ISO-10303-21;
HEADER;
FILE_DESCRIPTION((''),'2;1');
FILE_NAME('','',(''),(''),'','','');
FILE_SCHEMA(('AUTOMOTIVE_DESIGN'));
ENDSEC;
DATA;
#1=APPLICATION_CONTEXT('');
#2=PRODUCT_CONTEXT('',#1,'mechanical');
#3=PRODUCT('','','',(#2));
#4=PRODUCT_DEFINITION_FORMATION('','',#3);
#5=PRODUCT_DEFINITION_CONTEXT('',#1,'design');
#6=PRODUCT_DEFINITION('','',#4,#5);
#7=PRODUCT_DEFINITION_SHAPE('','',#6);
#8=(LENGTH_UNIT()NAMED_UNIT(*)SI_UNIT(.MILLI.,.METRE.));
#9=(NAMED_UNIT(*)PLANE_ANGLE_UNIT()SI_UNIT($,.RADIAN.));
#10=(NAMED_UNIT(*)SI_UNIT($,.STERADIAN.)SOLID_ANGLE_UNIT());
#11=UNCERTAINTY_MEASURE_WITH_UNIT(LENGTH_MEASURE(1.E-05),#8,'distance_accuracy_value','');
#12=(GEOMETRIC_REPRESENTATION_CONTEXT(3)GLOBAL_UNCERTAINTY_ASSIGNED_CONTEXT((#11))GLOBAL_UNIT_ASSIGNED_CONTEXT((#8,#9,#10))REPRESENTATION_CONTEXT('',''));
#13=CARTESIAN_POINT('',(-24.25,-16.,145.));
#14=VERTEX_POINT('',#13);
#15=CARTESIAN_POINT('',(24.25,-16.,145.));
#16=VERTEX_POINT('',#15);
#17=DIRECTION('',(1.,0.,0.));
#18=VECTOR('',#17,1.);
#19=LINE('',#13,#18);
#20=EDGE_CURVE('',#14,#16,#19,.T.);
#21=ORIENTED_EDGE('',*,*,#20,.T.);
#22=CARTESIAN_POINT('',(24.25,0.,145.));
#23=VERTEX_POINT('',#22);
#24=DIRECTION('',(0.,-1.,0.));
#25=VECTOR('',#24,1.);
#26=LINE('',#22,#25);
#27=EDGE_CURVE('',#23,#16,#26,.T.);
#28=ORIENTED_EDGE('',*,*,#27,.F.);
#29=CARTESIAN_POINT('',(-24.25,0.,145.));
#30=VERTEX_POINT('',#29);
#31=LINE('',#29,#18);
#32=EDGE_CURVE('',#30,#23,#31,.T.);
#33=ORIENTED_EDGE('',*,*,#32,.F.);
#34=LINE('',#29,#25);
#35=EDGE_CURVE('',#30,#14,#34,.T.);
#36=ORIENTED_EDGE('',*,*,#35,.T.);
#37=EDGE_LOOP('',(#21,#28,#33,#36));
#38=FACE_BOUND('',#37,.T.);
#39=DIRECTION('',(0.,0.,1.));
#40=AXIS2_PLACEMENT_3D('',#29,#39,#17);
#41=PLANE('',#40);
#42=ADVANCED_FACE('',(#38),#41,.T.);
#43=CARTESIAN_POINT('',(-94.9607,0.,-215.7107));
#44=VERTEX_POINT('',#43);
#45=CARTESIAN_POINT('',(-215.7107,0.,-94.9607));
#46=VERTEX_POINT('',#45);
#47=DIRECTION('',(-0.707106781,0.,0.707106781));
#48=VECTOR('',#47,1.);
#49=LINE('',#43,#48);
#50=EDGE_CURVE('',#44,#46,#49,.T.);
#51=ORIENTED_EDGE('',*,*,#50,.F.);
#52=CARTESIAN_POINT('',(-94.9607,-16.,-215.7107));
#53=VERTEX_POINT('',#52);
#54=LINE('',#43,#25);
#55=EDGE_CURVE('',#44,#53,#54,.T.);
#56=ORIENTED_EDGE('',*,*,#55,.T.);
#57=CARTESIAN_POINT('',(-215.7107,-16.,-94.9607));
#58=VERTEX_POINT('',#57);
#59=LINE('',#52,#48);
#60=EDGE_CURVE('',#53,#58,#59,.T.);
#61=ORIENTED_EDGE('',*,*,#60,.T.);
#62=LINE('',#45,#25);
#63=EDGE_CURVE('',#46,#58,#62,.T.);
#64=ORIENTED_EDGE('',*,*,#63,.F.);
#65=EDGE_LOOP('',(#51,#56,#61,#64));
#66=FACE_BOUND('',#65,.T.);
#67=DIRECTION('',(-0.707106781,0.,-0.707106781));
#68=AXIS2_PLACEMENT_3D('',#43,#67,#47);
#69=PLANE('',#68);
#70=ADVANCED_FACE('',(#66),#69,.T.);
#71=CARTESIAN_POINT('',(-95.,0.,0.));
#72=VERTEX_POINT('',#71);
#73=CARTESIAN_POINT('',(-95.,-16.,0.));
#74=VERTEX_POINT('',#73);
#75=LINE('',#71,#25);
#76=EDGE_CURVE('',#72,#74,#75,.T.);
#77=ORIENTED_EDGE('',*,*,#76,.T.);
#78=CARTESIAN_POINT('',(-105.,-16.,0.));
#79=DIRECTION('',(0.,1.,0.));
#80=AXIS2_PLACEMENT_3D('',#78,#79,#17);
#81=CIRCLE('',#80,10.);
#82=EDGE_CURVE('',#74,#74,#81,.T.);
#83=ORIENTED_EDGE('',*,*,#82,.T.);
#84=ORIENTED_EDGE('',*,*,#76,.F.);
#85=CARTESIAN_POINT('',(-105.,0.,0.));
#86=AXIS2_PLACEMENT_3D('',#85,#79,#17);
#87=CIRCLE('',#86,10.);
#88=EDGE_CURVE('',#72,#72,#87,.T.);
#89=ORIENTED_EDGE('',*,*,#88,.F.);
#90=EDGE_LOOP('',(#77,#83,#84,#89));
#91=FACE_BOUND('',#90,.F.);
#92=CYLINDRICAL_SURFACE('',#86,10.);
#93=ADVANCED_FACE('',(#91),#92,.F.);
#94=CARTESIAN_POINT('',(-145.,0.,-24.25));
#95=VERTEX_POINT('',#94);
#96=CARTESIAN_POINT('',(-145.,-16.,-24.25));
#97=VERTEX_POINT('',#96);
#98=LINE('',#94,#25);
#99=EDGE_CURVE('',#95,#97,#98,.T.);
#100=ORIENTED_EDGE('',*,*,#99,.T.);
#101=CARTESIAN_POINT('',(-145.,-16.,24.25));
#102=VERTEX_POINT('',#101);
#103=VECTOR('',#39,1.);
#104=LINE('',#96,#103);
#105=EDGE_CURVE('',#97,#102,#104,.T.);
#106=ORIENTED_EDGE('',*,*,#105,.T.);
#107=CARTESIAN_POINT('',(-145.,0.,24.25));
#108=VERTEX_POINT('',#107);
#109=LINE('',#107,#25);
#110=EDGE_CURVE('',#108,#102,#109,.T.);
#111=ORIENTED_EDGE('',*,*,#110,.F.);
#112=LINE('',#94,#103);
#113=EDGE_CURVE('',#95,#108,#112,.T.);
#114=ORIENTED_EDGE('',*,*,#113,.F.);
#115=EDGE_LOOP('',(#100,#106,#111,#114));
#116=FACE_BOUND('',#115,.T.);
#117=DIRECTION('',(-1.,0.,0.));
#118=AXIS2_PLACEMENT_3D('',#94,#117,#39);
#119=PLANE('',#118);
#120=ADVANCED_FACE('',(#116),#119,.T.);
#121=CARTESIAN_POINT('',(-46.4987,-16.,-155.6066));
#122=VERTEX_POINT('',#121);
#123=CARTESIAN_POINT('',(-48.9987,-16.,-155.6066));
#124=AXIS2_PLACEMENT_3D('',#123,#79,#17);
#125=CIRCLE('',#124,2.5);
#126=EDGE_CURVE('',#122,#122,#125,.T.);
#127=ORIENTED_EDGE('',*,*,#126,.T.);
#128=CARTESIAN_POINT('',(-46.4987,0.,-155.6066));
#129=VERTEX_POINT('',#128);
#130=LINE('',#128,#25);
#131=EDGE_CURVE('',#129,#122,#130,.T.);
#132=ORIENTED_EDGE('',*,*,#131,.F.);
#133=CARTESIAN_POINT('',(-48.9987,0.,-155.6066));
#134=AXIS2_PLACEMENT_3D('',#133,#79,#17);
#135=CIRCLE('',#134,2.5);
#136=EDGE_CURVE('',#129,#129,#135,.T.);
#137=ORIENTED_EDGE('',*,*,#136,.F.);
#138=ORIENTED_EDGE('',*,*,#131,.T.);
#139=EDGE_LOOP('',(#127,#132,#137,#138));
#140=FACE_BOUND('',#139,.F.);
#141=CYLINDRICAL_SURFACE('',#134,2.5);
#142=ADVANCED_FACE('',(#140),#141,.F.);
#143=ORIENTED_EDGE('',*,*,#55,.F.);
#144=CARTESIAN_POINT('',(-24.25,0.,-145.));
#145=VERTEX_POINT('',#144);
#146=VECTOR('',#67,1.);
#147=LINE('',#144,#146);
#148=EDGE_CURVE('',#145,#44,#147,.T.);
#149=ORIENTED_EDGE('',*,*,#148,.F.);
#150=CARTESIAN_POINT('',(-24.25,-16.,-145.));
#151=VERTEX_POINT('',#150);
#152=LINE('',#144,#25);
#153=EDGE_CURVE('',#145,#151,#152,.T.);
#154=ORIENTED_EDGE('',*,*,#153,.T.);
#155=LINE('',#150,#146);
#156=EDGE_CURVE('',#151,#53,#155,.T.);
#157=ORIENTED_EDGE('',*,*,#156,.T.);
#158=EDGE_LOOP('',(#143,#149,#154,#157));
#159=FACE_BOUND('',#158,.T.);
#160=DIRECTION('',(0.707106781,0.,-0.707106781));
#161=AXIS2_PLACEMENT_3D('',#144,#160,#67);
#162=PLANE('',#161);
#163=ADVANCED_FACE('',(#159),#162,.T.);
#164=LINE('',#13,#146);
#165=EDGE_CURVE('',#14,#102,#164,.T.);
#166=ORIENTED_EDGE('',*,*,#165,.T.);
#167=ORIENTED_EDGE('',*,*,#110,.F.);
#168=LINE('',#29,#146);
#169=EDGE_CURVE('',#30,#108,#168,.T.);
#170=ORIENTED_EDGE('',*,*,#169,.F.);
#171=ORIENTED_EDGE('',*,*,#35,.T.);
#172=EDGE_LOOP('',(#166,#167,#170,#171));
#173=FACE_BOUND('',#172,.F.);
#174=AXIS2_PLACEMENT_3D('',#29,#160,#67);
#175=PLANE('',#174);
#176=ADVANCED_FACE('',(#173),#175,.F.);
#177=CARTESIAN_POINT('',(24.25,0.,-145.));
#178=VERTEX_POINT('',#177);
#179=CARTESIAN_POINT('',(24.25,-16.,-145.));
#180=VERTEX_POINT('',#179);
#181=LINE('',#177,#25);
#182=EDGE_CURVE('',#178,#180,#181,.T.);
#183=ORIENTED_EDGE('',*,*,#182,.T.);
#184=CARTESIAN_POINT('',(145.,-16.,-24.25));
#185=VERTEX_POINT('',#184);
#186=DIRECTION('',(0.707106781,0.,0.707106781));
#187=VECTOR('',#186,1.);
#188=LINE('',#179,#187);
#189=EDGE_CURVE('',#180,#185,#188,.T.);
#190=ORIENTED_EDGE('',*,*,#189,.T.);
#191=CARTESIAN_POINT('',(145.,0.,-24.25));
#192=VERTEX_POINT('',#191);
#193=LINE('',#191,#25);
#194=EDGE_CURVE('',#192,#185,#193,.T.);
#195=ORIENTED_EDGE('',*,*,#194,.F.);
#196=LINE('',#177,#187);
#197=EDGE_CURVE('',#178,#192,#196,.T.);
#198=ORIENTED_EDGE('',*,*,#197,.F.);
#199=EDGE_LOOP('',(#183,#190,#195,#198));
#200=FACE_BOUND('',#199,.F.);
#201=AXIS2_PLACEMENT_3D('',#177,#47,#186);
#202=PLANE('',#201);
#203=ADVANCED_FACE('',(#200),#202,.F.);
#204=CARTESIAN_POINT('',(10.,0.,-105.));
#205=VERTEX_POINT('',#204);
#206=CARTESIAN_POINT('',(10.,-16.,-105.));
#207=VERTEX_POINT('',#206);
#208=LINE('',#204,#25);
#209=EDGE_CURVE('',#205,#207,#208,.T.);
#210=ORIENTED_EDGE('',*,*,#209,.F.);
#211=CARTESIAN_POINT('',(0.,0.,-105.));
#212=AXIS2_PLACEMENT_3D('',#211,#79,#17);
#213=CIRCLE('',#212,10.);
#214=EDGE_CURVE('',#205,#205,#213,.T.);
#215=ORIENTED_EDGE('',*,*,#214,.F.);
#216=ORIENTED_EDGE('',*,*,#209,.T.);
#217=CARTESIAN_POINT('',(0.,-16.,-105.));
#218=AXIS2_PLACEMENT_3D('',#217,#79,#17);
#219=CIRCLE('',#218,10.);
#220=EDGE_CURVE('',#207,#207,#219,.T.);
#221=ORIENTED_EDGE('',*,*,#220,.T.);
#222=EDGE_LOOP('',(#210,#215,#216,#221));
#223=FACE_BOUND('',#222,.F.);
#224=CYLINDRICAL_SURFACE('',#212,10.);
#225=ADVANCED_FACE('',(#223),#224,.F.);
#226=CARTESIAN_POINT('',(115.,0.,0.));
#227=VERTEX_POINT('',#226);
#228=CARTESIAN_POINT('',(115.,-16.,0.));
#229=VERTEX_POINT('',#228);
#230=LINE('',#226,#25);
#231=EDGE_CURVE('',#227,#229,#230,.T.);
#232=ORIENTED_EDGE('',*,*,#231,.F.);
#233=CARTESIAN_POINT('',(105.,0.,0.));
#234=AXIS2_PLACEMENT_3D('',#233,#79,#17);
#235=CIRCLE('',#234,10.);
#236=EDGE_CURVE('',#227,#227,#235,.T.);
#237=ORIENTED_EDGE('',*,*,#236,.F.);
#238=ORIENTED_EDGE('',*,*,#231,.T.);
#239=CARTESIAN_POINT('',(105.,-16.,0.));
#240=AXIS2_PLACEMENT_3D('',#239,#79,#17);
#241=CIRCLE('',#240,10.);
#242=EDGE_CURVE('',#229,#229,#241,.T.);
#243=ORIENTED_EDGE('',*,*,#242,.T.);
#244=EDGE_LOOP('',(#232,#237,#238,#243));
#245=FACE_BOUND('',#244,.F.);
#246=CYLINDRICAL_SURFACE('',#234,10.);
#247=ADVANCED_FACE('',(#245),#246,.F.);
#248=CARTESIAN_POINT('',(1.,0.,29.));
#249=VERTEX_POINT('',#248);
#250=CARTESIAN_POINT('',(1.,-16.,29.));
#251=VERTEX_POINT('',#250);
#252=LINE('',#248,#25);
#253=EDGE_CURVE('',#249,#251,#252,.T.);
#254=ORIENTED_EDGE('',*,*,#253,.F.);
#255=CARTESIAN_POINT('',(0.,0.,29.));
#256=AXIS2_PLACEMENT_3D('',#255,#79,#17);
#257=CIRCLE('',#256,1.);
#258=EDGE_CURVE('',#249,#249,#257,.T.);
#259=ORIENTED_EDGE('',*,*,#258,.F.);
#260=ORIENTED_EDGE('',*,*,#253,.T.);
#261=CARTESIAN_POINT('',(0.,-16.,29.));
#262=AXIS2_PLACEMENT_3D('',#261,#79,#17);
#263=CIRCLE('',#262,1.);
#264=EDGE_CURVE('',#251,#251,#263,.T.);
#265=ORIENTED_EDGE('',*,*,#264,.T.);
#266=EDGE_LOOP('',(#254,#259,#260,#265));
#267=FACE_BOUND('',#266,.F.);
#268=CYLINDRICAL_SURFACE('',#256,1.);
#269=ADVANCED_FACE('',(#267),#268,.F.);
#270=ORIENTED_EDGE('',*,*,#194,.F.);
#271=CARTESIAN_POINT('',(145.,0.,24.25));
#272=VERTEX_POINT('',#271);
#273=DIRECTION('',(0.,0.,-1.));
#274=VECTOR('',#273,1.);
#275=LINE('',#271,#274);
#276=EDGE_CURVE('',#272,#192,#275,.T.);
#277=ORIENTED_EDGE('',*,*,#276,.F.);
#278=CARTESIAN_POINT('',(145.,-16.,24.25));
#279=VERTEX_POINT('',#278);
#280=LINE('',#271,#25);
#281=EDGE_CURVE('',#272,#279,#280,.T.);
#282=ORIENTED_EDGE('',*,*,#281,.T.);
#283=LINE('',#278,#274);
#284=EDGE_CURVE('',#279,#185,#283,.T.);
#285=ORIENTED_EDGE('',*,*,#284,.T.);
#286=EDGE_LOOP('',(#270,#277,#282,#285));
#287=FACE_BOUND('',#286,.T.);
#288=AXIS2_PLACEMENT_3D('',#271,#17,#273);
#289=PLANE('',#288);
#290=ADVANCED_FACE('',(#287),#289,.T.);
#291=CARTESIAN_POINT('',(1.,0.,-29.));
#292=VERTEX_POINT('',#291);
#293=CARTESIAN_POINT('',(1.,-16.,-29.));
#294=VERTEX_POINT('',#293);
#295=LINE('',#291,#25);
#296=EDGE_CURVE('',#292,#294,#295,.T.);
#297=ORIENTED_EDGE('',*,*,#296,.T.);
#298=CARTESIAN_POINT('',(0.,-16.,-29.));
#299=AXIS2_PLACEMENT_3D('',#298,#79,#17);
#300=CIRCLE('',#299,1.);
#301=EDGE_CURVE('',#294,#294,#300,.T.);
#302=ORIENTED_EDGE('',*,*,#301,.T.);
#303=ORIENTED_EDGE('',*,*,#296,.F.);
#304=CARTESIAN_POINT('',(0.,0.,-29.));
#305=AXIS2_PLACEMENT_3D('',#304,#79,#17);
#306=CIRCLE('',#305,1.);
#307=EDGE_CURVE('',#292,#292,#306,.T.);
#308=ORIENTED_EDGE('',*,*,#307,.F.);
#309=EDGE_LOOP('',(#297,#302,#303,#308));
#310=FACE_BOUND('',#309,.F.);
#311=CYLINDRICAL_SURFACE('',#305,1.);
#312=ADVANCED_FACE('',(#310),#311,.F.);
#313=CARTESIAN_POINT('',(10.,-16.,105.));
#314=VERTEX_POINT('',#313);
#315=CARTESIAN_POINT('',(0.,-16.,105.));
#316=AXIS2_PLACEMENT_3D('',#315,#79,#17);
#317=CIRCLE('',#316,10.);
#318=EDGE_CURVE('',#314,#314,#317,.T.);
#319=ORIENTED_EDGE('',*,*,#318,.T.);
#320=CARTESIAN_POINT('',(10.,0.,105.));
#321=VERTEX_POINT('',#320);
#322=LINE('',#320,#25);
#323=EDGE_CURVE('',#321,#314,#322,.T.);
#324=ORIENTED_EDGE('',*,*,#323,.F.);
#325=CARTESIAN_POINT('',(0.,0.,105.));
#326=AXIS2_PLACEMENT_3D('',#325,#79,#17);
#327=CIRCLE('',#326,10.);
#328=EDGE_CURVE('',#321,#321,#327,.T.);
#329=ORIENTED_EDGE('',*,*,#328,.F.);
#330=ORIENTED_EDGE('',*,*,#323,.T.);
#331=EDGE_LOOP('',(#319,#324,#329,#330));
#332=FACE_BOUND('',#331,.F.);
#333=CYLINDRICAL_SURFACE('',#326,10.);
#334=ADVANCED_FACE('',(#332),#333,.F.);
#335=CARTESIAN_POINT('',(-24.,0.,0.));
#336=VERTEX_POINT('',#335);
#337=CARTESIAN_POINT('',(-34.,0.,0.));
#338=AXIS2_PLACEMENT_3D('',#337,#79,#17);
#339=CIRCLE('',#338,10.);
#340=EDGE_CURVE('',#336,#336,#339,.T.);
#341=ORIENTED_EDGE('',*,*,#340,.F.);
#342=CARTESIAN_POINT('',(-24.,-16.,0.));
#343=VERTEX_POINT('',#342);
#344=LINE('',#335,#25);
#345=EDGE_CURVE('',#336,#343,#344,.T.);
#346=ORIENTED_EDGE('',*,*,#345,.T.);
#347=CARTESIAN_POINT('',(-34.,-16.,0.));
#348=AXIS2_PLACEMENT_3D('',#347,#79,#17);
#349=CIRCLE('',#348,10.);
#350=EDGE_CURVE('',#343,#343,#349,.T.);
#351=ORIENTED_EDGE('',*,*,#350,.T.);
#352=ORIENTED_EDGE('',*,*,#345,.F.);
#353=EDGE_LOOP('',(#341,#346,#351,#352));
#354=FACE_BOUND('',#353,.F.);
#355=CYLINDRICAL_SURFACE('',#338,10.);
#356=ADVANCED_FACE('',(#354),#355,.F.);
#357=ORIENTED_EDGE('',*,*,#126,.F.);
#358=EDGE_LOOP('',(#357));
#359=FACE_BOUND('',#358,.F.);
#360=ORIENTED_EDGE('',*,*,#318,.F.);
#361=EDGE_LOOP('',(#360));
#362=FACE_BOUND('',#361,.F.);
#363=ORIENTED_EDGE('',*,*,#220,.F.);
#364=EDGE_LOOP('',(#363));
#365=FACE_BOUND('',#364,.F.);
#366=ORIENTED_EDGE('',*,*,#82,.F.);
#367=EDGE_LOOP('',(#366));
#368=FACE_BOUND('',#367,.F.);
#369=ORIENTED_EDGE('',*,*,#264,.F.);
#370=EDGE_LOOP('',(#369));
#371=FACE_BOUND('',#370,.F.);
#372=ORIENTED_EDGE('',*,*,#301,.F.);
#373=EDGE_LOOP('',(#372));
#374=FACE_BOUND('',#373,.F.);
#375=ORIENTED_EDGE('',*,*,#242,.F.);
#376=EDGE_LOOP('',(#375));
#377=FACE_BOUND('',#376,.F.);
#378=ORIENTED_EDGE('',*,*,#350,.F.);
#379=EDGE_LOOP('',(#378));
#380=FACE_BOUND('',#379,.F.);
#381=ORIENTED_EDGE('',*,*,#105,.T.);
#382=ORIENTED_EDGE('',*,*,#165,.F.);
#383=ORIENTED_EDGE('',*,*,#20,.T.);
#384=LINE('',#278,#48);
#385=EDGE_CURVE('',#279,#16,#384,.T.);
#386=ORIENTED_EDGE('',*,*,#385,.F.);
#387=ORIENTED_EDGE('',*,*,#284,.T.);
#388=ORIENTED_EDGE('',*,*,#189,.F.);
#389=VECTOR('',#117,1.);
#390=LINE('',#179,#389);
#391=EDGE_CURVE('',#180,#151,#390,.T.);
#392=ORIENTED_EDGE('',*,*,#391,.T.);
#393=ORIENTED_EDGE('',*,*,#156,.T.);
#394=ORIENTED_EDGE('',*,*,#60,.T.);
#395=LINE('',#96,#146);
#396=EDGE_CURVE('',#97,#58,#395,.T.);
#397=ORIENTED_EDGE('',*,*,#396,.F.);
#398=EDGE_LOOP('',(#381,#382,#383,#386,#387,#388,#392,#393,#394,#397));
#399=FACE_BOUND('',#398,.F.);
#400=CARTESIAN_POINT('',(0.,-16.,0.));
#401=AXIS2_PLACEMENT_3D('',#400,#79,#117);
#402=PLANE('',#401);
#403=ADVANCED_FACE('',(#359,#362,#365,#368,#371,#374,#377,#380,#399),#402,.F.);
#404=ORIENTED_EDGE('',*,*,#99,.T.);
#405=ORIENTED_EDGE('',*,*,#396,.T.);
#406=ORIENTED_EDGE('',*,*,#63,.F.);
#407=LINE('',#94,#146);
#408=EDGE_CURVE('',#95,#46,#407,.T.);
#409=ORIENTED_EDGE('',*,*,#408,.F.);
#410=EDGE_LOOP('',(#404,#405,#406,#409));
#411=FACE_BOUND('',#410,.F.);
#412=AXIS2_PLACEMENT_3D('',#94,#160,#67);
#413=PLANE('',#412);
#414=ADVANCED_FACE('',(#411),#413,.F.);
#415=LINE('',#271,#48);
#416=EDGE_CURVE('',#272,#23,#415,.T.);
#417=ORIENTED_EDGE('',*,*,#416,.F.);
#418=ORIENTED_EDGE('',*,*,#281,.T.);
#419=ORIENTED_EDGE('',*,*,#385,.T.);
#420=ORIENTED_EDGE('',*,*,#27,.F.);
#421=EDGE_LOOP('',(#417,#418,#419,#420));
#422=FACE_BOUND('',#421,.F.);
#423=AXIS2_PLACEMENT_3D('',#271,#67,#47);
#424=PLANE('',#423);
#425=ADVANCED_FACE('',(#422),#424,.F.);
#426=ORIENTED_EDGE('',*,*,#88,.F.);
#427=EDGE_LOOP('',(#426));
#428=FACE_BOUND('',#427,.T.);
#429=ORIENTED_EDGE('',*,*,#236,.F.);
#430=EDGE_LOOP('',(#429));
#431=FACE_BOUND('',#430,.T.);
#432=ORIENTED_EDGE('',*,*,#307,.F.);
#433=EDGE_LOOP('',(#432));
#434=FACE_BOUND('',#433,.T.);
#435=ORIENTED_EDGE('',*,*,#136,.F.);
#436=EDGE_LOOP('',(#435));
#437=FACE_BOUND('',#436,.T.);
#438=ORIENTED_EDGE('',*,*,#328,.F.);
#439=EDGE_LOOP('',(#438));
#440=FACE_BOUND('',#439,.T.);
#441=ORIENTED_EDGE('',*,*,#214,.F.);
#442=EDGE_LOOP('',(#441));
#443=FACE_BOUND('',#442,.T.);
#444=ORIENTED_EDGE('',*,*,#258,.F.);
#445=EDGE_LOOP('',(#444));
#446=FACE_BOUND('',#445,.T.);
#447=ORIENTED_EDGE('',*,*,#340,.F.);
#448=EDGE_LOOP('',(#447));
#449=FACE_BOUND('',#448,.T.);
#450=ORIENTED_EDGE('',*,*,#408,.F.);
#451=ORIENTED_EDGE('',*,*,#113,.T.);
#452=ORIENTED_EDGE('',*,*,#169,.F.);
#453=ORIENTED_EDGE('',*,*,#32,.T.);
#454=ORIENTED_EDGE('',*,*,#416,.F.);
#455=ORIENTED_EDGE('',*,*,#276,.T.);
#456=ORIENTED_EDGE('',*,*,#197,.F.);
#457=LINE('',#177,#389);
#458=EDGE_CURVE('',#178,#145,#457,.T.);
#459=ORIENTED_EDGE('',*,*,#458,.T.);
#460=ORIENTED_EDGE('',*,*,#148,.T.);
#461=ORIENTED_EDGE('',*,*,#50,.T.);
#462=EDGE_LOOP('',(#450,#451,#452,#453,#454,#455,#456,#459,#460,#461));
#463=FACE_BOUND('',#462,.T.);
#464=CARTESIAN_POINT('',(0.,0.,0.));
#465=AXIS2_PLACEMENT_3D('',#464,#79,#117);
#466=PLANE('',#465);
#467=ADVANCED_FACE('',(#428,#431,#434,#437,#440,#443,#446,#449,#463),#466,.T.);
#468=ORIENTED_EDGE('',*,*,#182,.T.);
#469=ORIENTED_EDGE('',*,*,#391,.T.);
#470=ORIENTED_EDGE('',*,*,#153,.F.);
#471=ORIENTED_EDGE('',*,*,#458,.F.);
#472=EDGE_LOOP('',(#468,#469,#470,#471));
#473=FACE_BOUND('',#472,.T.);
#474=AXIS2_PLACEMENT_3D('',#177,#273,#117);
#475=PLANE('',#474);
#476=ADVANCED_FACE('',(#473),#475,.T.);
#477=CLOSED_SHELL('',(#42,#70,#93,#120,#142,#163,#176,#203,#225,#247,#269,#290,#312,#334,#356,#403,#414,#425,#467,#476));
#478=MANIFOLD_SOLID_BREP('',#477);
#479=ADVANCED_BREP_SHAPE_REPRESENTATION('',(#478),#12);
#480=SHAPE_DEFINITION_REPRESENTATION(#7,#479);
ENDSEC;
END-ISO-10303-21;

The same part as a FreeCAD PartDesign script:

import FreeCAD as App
import Part
import Sketcher
from FreeCAD import Vector
Q = App.Units.Quantity

doc = App.newDocument("Part")
body = doc.addObject("PartDesign::Body", "Body")

sketch1 = body.newObject("Sketcher::SketchObject", "Sketch")
sketch1.AttachmentSupport = (doc.getObject("XZ_Plane"), [""])
sketch1.MapMode = "FlatFace"
sketch1.addGeometry([
    Part.LineSegment(Vector(-145, 24.25, 0), Vector(-24.25, 145, 0)),
    Part.LineSegment(Vector(-24.25, 145, 0), Vector(24.25, 145, 0)),
    Part.LineSegment(Vector(24.25, 145, 0), Vector(145, 24.25, 0)),
    Part.LineSegment(Vector(145, 24.25, 0), Vector(145, -24.25, 0)),
    Part.LineSegment(Vector(145, -24.25, 0), Vector(24.25, -145, 0)),
    Part.LineSegment(Vector(24.25, -145, 0), Vector(-24.25, -145, 0)),
    Part.LineSegment(Vector(-24.25, -145, 0), Vector(-94.9607, -215.7107, 0)),
    Part.LineSegment(Vector(-94.9607, -215.7107, 0), Vector(-215.7107, -94.9607, 0)),
    Part.LineSegment(Vector(-215.7107, -94.9607, 0), Vector(-145, -24.25, 0)),
    Part.LineSegment(Vector(-145, -24.25, 0), Vector(-145, 24.25, 0)),
], False)
sketch1.addConstraint([
    Sketcher.Constraint("Coincident", 0, 2, 1, 1),
    Sketcher.Constraint("Coincident", 1, 2, 2, 1),
    Sketcher.Constraint("Coincident", 2, 2, 3, 1),
    Sketcher.Constraint("Coincident", 3, 2, 4, 1),
    Sketcher.Constraint("Coincident", 4, 2, 5, 1),
    Sketcher.Constraint("Coincident", 5, 2, 6, 1),
    Sketcher.Constraint("Coincident", 6, 2, 7, 1),
    Sketcher.Constraint("Coincident", 7, 2, 8, 1),
    Sketcher.Constraint("Coincident", 8, 2, 9, 1),
    Sketcher.Constraint("Coincident", 9, 2, 0, 1),
    Sketcher.Constraint("Horizontal", 1),
    Sketcher.Constraint("Vertical", 3),
    Sketcher.Constraint("Horizontal", 5),
    Sketcher.Constraint("Vertical", 9),
    Sketcher.Constraint("Symmetric", 0, 2, 4, 2, -1, 1),
    Sketcher.Constraint("Symmetric", 2, 2, 8, 2, -1, 1),
    Sketcher.Constraint("Perpendicular", 0, 2),
    Sketcher.Constraint("Perpendicular", 2, 4),
    Sketcher.Constraint("Parallel", 4, 6),
    Sketcher.Constraint("Perpendicular", 6, 7),
    Sketcher.Constraint("Perpendicular", 7, 8),
    Sketcher.Constraint("Horizontal", 3, 2, 8, 2),
    Sketcher.Constraint("Vertical", 1, 2, 4, 2),
    Sketcher.Constraint("Vertical", 0, 2, 5, 2),
    Sketcher.Constraint("Equal", 5, 3),
    Sketcher.Constraint("Distance", 6, Q("100 mm")),
    Sketcher.Constraint("DistanceX", 1, 1, 1, 2, Q("48.5 mm")),
    Sketcher.Constraint("DistanceY", -1, 1, 0, 2, Q("145 mm")),
])
pad1 = body.newObject("PartDesign::Pad", "Pad")
pad1.Profile = sketch1
pad1.Length = 16

sketch2 = body.newObject("Sketcher::SketchObject", "Sketch001")
sketch2.AttachmentSupport = (doc.getObject("XZ_Plane"), [""])
sketch2.MapMode = "FlatFace"
sketch2.addGeometry([
    Part.Circle(Vector(0, -105, 0), Vector(0, 0, 1), 10),
    Part.Circle(Vector(-105, 0, 0), Vector(0, 0, 1), 10),
    Part.Circle(Vector(105, 0, 0), Vector(0, 0, 1), 10),
    Part.Circle(Vector(0, 105, 0), Vector(0, 0, 1), 10),
    Part.Circle(Vector(0, -29, 0), Vector(0, 0, 1), 1),
    Part.Circle(Vector(0, 29, 0), Vector(0, 0, 1), 1),
    Part.Circle(Vector(-34, 0, 0), Vector(0, 0, 1), 10),
    Part.Circle(Vector(-48.9987, -155.6066, 0), Vector(0, 0, 1), 2.5),
], False)
sketch2.addConstraint([
    Sketcher.Constraint("Equal", 0, 1),
    Sketcher.Constraint("Equal", 1, 2),
    Sketcher.Constraint("Equal", 2, 3),
    Sketcher.Constraint("Equal", 4, 5),
    Sketcher.Constraint("Equal", 3, 6),
    Sketcher.Constraint("Symmetric", 1, 3, 2, 3, -1, 1),
    Sketcher.Constraint("Symmetric", 0, 3, 3, 3, -1, 1),
    Sketcher.Constraint("Symmetric", 4, 3, 5, 3, -1, 1),
    Sketcher.Constraint("PointOnObject", 0, 3, -2),
    Sketcher.Constraint("PointOnObject", 1, 3, -1),
    Sketcher.Constraint("PointOnObject", 4, 3, -2),
    Sketcher.Constraint("PointOnObject", 6, 3, -1),
    Sketcher.Constraint("Diameter", 0, Q("20 mm")),
    Sketcher.Constraint("Diameter", 4, Q("2 mm")),
    Sketcher.Constraint("Diameter", 7, Q("5 mm")),
    Sketcher.Constraint("DistanceY", 0, 3, -1, 1, Q("105 mm")),
    Sketcher.Constraint("DistanceX", 1, 3, -1, 1, Q("105 mm")),
    Sketcher.Constraint("DistanceY", 4, 3, -1, 1, Q("29 mm")),
    Sketcher.Constraint("DistanceX", 6, 3, -1, 1, Q("34 mm")),
    Sketcher.Constraint("DistanceX", 7, 3, -1, 1, Q("48.9987 mm")),
    Sketcher.Constraint("DistanceY", 7, 3, -1, 1, Q("155.6066 mm")),
])
pocket1 = body.newObject("PartDesign::Pocket", "Pocket")
pocket1.Profile = sketch2
pocket1.Length = 20
pocket1.Reversed = True

doc.recompute()
